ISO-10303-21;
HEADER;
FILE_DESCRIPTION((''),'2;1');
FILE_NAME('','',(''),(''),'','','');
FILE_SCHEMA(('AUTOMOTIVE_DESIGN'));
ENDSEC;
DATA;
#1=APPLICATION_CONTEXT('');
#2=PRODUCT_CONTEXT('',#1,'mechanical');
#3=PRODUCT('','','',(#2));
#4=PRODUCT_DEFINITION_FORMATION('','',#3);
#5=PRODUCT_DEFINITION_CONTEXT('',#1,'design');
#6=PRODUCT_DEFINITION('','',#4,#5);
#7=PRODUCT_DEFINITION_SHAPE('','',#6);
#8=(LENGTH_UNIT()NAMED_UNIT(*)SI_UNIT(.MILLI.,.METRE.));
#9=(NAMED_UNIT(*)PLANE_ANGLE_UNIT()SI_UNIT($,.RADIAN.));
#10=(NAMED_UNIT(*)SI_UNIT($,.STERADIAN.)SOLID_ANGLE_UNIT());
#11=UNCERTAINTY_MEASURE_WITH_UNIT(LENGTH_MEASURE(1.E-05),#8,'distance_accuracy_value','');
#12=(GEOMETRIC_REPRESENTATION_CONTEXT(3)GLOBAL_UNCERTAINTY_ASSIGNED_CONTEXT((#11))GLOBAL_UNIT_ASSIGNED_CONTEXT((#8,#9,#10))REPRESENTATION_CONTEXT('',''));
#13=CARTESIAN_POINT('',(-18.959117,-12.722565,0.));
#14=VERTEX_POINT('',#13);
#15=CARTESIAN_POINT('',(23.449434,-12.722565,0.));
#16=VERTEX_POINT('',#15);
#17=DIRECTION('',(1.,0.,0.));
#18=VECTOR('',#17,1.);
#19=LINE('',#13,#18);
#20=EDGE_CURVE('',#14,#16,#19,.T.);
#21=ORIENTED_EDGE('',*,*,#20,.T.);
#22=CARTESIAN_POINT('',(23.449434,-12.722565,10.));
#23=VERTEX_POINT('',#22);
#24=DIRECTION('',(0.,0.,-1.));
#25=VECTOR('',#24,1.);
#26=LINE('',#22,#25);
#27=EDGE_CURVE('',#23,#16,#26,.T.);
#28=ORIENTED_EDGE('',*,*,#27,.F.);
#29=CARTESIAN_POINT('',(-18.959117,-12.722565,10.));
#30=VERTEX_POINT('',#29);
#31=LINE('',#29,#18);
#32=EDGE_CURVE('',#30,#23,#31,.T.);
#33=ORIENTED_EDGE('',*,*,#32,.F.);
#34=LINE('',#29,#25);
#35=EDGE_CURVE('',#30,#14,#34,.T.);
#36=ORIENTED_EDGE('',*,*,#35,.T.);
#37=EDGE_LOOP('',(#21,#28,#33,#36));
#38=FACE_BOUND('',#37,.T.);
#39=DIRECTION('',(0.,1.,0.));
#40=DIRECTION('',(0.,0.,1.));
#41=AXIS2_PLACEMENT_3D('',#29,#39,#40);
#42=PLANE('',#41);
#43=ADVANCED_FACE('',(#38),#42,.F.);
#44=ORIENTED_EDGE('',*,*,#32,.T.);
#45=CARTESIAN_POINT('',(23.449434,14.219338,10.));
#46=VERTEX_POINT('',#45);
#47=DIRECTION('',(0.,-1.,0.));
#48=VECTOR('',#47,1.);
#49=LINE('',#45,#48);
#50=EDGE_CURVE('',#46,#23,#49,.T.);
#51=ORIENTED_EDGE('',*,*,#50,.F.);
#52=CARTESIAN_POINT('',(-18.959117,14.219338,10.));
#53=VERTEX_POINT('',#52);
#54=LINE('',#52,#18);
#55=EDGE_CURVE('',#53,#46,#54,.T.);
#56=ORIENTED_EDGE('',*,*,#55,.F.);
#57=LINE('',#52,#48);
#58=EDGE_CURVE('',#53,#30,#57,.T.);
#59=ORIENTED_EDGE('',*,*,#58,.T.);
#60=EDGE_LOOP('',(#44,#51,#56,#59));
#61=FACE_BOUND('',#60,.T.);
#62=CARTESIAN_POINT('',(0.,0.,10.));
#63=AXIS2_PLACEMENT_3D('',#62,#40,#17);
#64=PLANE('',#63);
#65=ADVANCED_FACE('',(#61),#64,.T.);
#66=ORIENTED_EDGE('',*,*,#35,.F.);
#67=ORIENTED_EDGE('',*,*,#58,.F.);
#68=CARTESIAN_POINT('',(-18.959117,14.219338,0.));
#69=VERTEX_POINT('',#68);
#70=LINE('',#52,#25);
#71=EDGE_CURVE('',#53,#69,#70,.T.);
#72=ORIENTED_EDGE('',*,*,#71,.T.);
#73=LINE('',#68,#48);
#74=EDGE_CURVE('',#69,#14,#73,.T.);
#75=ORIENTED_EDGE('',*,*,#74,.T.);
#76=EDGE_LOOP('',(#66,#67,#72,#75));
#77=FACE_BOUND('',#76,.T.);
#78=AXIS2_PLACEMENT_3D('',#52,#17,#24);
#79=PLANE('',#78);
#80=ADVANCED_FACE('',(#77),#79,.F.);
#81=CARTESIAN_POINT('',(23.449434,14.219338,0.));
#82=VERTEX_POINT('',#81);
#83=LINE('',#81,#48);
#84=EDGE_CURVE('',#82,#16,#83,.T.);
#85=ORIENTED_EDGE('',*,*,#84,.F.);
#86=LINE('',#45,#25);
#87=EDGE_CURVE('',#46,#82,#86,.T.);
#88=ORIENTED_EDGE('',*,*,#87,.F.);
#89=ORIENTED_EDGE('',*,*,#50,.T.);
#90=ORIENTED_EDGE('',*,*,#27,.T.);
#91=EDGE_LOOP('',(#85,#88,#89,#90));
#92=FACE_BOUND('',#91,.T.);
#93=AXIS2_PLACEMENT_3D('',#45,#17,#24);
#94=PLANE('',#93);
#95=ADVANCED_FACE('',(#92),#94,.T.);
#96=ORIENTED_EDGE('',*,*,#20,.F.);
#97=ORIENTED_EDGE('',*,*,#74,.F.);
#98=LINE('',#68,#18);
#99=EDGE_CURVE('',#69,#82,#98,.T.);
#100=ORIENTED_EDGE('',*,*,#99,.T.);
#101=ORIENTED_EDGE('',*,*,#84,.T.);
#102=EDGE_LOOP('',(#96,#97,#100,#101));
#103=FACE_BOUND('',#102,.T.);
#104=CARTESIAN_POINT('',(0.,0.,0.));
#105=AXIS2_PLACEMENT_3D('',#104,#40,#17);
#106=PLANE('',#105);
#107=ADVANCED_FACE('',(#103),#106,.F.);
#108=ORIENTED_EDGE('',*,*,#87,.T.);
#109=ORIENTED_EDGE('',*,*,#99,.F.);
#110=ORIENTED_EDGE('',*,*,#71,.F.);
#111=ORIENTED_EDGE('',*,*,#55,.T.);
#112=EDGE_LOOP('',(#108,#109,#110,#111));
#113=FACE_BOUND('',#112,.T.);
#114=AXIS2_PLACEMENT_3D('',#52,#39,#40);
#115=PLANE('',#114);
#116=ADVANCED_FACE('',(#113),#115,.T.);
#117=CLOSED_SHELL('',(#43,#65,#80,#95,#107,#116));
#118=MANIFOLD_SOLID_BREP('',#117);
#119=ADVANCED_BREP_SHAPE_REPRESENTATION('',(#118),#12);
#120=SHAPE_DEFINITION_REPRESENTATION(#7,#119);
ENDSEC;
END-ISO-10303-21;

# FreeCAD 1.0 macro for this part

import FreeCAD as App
import Part
import Sketcher
Q = App.Units.Quantity

doc = App.newDocument("Part")
body = doc.addObject("PartDesign::Body", "Body")

# Sketch on XY plane
sketch1 = doc.addObject("Sketcher::SketchObject", "Sketch")
body.addObject(sketch1)
sketch1.AttachmentSupport = (doc.XY_Plane, [""])
sketch1.MapMode = "FlatFace"
sketch1.addGeometry([
    Part.LineSegment(App.Vector(-18.959117, 14.219338, 0), App.Vector(-18.959117, -12.722565, 0)),
    Part.LineSegment(App.Vector(-18.959117, -12.722565, 0), App.Vector(23.449434, -12.722565, 0)),
    Part.LineSegment(App.Vector(23.449434, -12.722565, 0), App.Vector(23.449434, 14.219338, 0)),
    Part.LineSegment(App.Vector(23.449434, 14.219338, 0), App.Vector(-18.959117, 14.219338, 0)),
], False)
sketch1.addConstraint([
    Sketcher.Constraint("Coincident", 0, 2, 1, 1),
    Sketcher.Constraint("Coincident", 1, 2, 2, 1),
    Sketcher.Constraint("Coincident", 2, 2, 3, 1),
    Sketcher.Constraint("Coincident", 3, 2, 0, 1),
    Sketcher.Constraint("Vertical", 0),
    Sketcher.Constraint("Horizontal", 1),
    Sketcher.Constraint("Vertical", 2),
    Sketcher.Constraint("Horizontal", 3),
    Sketcher.Constraint("DistanceX", 1, 1, 1, 2, Q("42.408552 mm")),
    Sketcher.Constraint("DistanceY", 0, 2, 0, 1, Q("26.941903 mm")),
    Sketcher.Constraint("DistanceX", 0, 2, -1, 1, Q("18.959117 mm")),
    Sketcher.Constraint("DistanceY", 0, 2, -1, 1, Q("12.722565 mm")),
])
pad1 = doc.addObject("PartDesign::Pad", "Pad")
body.addObject(pad1)
pad1.Profile = sketch1
pad1.Length = 10

doc.recompute()
